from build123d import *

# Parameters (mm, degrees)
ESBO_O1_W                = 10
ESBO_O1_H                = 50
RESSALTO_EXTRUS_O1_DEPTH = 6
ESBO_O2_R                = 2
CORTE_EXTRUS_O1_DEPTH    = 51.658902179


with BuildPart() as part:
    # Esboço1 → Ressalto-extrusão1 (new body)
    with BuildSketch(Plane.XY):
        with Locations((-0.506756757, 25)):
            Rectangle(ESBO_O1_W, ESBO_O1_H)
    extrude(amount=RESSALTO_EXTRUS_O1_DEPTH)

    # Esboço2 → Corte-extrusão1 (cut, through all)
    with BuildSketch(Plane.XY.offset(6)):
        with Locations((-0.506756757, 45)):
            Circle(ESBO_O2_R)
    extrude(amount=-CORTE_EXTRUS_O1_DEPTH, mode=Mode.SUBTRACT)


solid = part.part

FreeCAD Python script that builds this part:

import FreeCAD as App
import Part
import Sketcher


def add_polygon(sketch, points):
    """Adds a closed chain of lines whose ends are joined by coincident constraints."""
    first, n = sketch.GeometryCount, len(points)
    for a, b in zip(points, points[1:] + points[:1]):
        sketch.addGeometry(Part.LineSegment(App.Vector(*a, 0), App.Vector(*b, 0)), False)
    for i in range(n):
        sketch.addConstraint(Sketcher.Constraint("Coincident", first + i, 2, first + (i + 1) % n, 1))

doc = App.newDocument("Part")
body = doc.addObject("PartDesign::Body", "Body")

# Sketch on XY plane
sketch1 = body.newObject("Sketcher::SketchObject", "Sketch")
sketch1.AttachmentSupport = (doc.getObject("XY_Plane"), [""])
sketch1.MapMode = "FlatFace"
add_polygon(sketch1, [(-5.506757, 50), (-5.506757, 0), (4.493243, 0), (4.493243, 50)])  # lines 0-3
sketch1.addConstraint(Sketcher.Constraint("Vertical", 0))
sketch1.addConstraint(Sketcher.Constraint("Horizontal", 1))
sketch1.addConstraint(Sketcher.Constraint("Vertical", 2))
sketch1.addConstraint(Sketcher.Constraint("Horizontal", 3))
sketch1.addConstraint(Sketcher.Constraint("PointOnObject", 0, 2, -1))
sketch1.addConstraint(Sketcher.Constraint("DistanceX", 1, 1, 1, 2, 10.0))
sketch1.addConstraint(Sketcher.Constraint("DistanceY", 0, 2, 0, 1, 50.0))
sketch1.addConstraint(Sketcher.Constraint("DistanceX", 0, 2, -1, 1, 5.506757))
pad1 = body.newObject("PartDesign::Pad", "Pad")
pad1.Profile = sketch1
pad1.Length = 6

# Sketch on XY plane
sketch2 = body.newObject("Sketcher::SketchObject", "Sketch001")
sketch2.AttachmentSupport = (doc.getObject("XY_Plane"), [""])
sketch2.MapMode = "FlatFace"
sketch2.AttachmentOffset = App.Placement(App.Vector(0, 0, 6), App.Rotation())
sketch2.addGeometry(Part.Circle(App.Vector(-0.506757, 45, 0), App.Vector(0, 0, 1), 2), False)
sketch2.addConstraint(Sketcher.Constraint("Diameter", 0, 4.0))
sketch2.addConstraint(Sketcher.Constraint("DistanceY", -1, 1, 0, 3, 45.0))
sketch2.addConstraint(Sketcher.Constraint("DistanceX", 0, 3, -1, 1, 0.506757))
pocket1 = body.newObject("PartDesign::Pocket", "Pocket")
pocket1.Profile = sketch2
pocket1.Type = "ThroughAll"

doc.recompute()
